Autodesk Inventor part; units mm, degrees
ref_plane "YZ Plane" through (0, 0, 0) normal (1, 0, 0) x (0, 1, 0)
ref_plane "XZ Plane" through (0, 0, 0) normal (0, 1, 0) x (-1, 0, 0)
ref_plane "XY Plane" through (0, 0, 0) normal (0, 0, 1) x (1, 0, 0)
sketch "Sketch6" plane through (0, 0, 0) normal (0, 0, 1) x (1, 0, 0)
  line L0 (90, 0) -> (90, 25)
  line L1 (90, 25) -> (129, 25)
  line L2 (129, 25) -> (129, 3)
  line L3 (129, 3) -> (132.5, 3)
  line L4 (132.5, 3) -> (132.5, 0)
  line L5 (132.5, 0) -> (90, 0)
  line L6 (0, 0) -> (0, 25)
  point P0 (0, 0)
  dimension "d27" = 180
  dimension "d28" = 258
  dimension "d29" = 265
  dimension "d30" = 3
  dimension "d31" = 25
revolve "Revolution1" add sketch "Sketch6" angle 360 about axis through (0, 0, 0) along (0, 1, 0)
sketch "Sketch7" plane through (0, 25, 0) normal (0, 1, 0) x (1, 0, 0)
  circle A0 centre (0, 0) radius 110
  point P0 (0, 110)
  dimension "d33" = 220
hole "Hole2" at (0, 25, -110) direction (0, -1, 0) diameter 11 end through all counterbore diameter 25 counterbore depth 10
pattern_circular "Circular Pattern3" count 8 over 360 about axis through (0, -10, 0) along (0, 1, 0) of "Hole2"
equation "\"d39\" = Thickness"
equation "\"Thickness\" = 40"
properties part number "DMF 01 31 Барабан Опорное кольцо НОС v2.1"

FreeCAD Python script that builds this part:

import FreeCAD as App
import Part
import Sketcher
from FreeCAD import Vector
Q = App.Units.Quantity


def add_polygon(sketch, points):
    """Adds a closed chain of lines whose ends are joined by coincident constraints."""
    first, n = sketch.GeometryCount, len(points)
    for a, b in zip(points, points[1:] + points[:1]):
        sketch.addGeometry(Part.LineSegment(App.Vector(*a, 0), App.Vector(*b, 0)), False)
    for i in range(n):
        sketch.addConstraint(Sketcher.Constraint("Coincident", first + i, 2, first + (i + 1) % n, 1))

doc = App.newDocument("Part")
body = doc.addObject("PartDesign::Body", "Body")

sketch1 = doc.addObject("Sketcher::SketchObject", "Sketch")
body.addObject(sketch1)
sketch1.AttachmentSupport = (doc.XY_Plane, [""])
sketch1.MapMode = "FlatFace"
add_polygon(sketch1, [(90, 25), (90, 0), (132.5, 0), (132.5, 3), (129, 3), (129, 25)])
sketch1.addConstraint([
    Sketcher.Constraint("Vertical", 0),
    Sketcher.Constraint("Horizontal", 1),
    Sketcher.Constraint("Vertical", 2),
    Sketcher.Constraint("Horizontal", 3),
    Sketcher.Constraint("Vertical", 4),
    Sketcher.Constraint("Horizontal", 5),
    Sketcher.Constraint("PointOnObject", 0, 2, -1),
    Sketcher.Constraint("DistanceY", 0, 2, 0, 1, Q("25 mm")),
    Sketcher.Constraint("DistanceY", 2, 1, 2, 2, Q("3 mm")),
    Sketcher.Constraint("DistanceX", 5, 2, 5, 1, Q("39 mm")),
    Sketcher.Constraint("DistanceX", 1, 1, 1, 2, Q("42.5 mm")),
    Sketcher.Constraint("DistanceX", -1, 1, 0, 2, Q("90 mm")),
])
revolution = doc.addObject("PartDesign::Revolution", "Revolution")
body.addObject(revolution)
revolution.Profile = sketch1
revolution.ReferenceAxis = (sketch1, ["V_Axis"])
revolution.Angle = 360

sketch2 = doc.addObject("Sketcher::SketchObject", "Sketch001")
body.addObject(sketch2)
sketch2.AttachmentSupport = (doc.XZ_Plane, [""])
sketch2.MapMode = "FlatFace"
sketch2.AttachmentOffset = App.Placement(Vector(0, 0, -25), App.Rotation())
sketch2.addGeometry(Part.Circle(Vector(0, -110, 0), Vector(0, 0, 1), 6), False)
sketch2.addConstraint([
    Sketcher.Constraint("PointOnObject", 0, 3, -2),
    Sketcher.Constraint("Diameter", 0, Q("11 mm")),
    Sketcher.Constraint("DistanceY", 0, 3, -1, 1, Q("110 mm")),
])
doc.recompute()
hole = doc.addObject("PartDesign::Hole", "Hole")
body.addObject(hole)
hole.Profile = sketch2
hole.ThreadType = "None"
hole.Diameter = 11
hole.DepthType = "ThroughAll"
hole.HoleCutType = "Counterbore"
hole.HoleCutDiameter = 25
hole.HoleCutDepth = 10
hole.Reversed = True
doc.recompute()

polarpattern = doc.addObject("PartDesign::PolarPattern", "PolarPattern")
body.addObject(polarpattern)
polarpattern.Originals = [hole]
polarpattern.Axis = (doc.Y_Axis, [""])
polarpattern.Angle = 360
polarpattern.Occurrences = 8
body.Tip = polarpattern

doc.recompute()
